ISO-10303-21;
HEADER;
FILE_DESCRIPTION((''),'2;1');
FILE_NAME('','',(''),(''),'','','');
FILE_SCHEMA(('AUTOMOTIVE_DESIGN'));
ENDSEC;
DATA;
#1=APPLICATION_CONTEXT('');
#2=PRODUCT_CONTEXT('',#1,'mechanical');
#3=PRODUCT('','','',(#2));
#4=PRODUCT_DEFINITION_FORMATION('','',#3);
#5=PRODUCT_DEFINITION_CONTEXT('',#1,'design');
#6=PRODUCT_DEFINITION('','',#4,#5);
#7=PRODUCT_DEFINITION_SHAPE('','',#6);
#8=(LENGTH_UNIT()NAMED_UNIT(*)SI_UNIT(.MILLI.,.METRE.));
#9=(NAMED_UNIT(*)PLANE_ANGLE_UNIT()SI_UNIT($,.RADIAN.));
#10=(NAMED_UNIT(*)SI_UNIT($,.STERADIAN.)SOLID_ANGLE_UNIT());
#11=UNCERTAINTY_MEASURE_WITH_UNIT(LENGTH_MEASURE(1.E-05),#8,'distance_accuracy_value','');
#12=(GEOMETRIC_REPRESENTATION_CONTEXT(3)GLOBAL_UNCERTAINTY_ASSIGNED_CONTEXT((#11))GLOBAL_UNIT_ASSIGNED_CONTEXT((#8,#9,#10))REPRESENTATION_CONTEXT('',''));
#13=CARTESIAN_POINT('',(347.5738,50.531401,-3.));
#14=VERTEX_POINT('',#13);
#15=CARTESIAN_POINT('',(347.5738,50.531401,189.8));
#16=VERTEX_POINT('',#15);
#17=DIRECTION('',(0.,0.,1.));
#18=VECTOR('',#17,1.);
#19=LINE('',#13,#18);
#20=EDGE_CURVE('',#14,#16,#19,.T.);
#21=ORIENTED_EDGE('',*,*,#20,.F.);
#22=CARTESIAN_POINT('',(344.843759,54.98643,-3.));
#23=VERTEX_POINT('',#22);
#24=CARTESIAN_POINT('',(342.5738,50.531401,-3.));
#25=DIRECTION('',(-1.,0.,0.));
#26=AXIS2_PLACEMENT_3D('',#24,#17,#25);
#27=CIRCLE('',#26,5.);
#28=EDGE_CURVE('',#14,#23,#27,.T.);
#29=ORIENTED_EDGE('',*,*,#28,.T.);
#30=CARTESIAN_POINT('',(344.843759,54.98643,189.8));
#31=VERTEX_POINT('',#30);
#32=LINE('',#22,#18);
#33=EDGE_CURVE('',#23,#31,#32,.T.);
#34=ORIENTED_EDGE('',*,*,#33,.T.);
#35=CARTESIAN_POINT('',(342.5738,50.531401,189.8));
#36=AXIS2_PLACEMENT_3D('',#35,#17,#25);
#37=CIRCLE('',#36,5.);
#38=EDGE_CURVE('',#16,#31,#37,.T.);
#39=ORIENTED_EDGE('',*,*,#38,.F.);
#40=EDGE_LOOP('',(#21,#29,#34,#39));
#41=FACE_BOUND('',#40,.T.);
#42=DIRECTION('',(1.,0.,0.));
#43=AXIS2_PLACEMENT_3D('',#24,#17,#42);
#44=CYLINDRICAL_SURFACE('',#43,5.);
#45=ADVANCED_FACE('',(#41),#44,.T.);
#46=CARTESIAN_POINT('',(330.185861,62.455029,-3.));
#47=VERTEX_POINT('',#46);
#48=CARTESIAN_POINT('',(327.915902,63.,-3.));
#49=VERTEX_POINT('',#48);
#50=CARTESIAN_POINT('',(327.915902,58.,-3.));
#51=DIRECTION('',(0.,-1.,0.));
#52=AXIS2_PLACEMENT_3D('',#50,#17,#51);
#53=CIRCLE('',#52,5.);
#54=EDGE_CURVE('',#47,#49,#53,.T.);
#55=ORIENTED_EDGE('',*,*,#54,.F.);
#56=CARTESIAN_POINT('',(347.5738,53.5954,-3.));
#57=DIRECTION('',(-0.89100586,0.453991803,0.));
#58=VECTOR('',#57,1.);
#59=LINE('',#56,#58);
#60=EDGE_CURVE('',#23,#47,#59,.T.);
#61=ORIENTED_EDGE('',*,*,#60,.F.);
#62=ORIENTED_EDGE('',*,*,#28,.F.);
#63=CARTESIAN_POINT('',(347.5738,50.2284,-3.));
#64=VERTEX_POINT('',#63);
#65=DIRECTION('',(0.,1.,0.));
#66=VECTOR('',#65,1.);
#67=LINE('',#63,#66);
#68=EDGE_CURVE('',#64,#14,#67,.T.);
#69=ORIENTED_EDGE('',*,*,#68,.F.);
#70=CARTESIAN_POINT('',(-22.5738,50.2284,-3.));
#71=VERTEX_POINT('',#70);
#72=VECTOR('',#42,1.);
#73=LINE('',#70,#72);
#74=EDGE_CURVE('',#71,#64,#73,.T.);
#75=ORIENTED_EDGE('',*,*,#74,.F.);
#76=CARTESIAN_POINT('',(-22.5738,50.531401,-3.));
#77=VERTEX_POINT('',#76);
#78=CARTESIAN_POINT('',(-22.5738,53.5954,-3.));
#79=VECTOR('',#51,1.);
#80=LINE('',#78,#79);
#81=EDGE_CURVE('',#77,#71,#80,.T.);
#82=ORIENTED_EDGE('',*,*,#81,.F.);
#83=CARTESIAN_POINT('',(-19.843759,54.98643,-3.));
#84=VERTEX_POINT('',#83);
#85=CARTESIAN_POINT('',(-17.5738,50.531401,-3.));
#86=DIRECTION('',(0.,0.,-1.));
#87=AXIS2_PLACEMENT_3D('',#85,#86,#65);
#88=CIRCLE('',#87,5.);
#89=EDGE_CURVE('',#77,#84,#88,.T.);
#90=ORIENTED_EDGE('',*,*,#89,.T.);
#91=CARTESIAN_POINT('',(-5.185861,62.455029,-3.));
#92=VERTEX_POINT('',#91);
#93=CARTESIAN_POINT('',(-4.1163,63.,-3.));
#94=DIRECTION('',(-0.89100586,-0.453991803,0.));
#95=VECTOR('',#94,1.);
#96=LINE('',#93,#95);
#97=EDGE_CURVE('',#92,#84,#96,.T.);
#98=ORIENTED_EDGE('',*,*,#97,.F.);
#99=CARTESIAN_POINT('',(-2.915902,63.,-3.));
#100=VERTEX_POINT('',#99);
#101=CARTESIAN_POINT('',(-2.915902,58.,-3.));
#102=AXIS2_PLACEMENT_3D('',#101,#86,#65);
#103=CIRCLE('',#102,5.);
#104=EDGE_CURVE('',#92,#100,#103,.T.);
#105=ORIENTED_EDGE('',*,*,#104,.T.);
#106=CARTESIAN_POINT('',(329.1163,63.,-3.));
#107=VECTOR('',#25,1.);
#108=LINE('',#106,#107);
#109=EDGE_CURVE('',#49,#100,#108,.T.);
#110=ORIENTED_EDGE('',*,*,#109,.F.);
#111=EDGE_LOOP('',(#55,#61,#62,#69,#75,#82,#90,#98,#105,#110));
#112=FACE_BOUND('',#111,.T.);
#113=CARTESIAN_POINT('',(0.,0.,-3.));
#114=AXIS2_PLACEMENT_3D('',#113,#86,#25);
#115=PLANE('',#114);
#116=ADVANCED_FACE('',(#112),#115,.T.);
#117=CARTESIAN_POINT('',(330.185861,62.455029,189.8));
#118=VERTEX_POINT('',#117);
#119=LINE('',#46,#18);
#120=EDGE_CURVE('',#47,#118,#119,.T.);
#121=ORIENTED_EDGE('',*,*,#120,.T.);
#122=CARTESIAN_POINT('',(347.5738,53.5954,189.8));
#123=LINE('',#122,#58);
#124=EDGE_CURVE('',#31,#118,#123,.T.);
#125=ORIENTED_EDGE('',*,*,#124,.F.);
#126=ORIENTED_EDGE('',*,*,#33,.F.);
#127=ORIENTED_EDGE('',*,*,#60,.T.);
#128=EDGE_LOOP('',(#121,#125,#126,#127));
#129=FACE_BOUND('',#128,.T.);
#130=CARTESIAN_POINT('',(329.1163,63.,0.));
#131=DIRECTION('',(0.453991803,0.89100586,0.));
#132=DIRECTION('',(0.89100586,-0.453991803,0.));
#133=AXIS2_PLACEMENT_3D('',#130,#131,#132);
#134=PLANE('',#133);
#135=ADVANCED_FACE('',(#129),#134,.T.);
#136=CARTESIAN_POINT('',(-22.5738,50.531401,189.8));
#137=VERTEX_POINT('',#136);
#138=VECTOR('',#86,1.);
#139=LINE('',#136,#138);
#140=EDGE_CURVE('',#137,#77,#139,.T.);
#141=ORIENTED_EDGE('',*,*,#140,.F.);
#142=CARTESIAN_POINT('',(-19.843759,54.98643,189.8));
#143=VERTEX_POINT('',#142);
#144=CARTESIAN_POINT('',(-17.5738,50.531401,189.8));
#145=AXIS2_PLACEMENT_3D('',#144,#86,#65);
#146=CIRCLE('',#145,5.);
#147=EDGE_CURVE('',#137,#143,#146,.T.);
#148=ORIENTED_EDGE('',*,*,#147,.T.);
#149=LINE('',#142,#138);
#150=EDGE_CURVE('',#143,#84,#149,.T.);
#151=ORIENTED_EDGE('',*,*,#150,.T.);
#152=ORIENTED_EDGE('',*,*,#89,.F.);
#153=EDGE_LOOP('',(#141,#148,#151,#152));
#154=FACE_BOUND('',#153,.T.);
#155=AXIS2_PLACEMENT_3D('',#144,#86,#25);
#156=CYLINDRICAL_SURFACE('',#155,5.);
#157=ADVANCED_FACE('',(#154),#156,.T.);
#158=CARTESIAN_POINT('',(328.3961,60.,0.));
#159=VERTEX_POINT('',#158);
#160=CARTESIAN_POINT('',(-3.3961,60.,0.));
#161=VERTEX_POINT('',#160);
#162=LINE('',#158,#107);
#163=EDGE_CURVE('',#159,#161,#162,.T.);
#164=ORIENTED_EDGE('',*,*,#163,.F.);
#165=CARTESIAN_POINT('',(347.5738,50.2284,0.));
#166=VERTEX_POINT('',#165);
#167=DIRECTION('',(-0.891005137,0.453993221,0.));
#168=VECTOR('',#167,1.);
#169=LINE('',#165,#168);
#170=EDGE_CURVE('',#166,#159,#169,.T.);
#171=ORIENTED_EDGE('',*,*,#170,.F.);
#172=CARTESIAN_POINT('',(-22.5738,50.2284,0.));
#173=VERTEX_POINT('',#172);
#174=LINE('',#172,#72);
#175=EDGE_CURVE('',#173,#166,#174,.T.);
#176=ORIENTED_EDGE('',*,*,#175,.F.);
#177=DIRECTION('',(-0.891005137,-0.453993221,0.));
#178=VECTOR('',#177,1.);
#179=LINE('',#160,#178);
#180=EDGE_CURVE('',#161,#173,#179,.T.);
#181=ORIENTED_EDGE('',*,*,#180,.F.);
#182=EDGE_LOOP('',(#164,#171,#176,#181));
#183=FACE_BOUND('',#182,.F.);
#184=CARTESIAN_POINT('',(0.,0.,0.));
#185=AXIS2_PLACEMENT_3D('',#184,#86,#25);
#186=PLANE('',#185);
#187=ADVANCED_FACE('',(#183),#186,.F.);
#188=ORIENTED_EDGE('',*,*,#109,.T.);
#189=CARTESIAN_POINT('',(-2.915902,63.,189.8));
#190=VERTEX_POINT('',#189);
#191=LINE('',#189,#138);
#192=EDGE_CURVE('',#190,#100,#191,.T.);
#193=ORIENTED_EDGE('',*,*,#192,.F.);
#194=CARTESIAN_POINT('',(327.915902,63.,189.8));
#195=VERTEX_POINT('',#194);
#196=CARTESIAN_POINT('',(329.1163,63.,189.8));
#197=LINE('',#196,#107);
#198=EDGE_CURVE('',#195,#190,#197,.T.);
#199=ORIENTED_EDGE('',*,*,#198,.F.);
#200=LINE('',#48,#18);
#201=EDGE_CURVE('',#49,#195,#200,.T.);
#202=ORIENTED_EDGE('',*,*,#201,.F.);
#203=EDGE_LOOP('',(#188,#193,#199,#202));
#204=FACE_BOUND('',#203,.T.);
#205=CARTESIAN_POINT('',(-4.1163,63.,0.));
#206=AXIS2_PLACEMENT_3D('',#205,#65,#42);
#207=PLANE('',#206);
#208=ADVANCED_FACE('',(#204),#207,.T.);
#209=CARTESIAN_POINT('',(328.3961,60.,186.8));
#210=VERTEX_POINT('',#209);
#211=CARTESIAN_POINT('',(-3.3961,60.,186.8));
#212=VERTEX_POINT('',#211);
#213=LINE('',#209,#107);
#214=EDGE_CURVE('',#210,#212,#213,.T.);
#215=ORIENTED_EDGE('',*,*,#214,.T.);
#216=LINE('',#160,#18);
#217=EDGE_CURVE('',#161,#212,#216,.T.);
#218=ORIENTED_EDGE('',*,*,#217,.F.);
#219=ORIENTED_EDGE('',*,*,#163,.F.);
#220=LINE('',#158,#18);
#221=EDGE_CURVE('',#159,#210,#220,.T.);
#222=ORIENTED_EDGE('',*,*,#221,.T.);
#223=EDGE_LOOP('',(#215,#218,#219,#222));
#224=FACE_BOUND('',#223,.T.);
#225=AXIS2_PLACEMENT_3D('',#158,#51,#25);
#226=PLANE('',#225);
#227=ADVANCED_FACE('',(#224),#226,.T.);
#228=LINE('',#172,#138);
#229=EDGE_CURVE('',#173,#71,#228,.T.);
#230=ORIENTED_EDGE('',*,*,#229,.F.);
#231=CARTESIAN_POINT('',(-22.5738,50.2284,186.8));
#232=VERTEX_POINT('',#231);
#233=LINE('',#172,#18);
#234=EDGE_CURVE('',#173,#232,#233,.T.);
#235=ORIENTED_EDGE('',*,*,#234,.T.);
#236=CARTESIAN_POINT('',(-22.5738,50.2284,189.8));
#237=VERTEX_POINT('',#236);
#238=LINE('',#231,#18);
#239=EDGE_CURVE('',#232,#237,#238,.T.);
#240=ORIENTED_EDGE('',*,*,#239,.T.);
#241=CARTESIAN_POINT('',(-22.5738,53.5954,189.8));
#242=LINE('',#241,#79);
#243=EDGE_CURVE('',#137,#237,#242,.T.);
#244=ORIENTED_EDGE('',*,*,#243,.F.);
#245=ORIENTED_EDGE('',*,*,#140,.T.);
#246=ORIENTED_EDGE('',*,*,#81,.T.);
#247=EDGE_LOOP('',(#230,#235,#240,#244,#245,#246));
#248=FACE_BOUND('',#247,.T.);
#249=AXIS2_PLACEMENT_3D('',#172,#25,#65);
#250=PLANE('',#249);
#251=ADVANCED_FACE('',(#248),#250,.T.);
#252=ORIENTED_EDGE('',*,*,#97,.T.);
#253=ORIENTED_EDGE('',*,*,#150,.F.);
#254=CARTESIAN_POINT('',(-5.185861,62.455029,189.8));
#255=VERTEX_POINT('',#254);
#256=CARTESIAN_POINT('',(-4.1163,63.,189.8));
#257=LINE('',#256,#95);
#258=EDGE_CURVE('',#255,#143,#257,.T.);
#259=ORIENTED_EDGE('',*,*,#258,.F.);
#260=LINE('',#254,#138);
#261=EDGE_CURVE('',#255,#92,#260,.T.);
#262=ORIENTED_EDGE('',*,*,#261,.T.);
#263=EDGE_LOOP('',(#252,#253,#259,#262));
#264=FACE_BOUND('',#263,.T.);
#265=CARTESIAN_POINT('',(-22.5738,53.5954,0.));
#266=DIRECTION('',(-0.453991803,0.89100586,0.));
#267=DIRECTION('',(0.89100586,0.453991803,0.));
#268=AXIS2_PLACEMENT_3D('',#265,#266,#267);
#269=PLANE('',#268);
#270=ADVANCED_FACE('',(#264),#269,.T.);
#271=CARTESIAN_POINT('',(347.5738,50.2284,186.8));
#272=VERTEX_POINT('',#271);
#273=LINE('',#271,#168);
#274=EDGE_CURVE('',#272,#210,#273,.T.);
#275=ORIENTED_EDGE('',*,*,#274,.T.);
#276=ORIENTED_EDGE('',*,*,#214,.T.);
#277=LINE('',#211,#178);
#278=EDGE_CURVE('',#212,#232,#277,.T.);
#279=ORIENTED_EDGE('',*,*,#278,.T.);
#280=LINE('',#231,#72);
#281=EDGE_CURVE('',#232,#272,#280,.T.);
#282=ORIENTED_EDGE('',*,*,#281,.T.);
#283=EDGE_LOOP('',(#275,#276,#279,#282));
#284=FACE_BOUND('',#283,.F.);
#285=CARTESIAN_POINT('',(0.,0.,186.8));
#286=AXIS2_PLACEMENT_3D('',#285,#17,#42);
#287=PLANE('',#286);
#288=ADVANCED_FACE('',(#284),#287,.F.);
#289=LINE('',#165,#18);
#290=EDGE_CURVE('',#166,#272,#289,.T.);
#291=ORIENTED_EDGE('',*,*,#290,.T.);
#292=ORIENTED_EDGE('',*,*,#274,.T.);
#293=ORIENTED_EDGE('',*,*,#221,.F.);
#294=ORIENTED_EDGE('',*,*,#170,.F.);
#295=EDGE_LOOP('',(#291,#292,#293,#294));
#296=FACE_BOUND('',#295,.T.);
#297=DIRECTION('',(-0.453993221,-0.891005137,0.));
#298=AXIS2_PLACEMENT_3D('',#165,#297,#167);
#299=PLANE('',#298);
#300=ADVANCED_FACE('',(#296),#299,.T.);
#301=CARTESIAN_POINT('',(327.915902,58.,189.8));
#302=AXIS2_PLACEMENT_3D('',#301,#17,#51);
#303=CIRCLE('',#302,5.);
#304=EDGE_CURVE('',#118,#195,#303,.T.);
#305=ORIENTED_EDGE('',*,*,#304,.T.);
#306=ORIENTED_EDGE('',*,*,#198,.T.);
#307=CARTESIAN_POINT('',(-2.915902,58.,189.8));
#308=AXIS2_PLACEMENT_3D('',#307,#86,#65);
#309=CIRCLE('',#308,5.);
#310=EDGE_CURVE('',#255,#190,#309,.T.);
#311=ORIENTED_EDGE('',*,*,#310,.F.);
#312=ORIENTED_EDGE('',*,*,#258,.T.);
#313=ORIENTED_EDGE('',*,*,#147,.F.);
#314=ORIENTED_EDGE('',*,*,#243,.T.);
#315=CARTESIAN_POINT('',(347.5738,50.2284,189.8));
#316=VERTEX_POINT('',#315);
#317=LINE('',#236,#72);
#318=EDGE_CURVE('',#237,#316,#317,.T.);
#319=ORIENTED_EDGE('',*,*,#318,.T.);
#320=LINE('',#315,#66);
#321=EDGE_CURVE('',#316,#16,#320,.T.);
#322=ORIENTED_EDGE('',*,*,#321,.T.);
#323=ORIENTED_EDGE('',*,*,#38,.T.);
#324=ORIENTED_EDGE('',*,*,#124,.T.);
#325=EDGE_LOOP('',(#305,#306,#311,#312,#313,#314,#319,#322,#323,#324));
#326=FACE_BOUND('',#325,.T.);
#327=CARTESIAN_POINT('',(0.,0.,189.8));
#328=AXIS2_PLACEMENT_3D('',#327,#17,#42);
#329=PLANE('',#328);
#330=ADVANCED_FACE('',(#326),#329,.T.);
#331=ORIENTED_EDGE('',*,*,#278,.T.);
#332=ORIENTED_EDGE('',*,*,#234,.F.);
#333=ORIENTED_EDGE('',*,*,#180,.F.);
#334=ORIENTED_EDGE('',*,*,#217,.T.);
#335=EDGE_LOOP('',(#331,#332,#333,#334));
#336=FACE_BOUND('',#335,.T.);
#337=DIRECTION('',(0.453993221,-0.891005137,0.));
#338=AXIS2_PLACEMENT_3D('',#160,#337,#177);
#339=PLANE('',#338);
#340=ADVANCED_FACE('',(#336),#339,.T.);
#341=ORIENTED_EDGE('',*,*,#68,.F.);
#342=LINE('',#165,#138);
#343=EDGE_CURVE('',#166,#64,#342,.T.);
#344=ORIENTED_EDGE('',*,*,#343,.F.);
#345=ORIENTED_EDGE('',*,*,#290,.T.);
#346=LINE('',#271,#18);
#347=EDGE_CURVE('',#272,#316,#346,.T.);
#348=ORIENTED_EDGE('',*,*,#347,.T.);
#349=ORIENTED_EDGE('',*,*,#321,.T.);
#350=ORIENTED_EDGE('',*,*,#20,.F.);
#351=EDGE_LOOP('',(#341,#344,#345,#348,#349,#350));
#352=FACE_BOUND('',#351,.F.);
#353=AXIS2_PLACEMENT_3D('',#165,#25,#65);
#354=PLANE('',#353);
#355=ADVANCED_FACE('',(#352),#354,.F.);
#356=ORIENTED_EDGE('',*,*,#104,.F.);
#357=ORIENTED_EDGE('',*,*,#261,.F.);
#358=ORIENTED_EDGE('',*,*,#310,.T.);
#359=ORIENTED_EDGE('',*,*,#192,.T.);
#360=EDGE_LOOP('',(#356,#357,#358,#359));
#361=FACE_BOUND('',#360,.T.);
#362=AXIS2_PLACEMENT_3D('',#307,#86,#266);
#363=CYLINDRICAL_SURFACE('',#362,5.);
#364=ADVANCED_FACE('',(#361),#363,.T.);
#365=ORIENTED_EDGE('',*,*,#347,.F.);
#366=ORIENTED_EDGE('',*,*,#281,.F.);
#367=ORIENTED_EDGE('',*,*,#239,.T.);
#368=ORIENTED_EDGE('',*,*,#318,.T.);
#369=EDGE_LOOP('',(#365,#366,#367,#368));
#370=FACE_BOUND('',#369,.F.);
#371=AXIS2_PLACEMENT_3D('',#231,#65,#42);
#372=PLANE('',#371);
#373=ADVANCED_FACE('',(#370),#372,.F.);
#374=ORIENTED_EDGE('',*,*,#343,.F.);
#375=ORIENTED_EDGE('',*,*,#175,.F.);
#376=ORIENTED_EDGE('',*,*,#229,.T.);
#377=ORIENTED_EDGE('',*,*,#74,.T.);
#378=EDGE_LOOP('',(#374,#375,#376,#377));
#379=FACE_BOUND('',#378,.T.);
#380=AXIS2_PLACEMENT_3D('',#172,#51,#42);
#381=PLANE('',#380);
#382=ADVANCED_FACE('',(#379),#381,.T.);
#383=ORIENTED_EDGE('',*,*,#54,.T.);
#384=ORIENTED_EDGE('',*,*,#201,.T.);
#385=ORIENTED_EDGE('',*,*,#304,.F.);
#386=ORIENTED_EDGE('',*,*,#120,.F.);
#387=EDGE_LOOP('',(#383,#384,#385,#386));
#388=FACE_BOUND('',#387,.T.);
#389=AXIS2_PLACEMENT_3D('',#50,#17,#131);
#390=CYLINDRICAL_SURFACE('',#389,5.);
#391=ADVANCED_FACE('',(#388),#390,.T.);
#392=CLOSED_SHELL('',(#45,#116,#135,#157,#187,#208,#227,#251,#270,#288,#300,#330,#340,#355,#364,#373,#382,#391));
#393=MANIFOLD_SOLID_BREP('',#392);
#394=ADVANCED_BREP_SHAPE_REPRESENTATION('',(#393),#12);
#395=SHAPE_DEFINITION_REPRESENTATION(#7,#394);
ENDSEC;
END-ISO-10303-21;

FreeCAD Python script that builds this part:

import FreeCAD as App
import Part
import Sketcher
from FreeCAD import Vector
Q = App.Units.Quantity


def edges_at(feature, points):
    """Names of the edges that pass closest to the given points."""
    edges = feature.Shape.Edges
    near = lambda p: min(range(len(edges)), key=lambda i: edges[i].distToShape(Part.Vertex(*p))[0])
    return sorted({f"Edge{near(p) + 1}" for p in points})


def add_polygon(sketch, points):
    """Adds a closed chain of lines whose ends are joined by coincident constraints."""
    first, n = sketch.GeometryCount, len(points)
    for a, b in zip(points, points[1:] + points[:1]):
        sketch.addGeometry(Part.LineSegment(App.Vector(*a, 0), App.Vector(*b, 0)), False)
    for i in range(n):
        sketch.addConstraint(Sketcher.Constraint("Coincident", first + i, 2, first + (i + 1) % n, 1))

doc = App.newDocument("Part")
body = doc.addObject("PartDesign::Body", "Body")

# Sketch on XY plane
sketch1 = body.newObject("Sketcher::SketchObject", "Sketch")
sketch1.AttachmentSupport = (doc.getObject("XY_Plane"), [""])
sketch1.MapMode = "FlatFace"
add_polygon(sketch1, [(-3.4, 60), (328.4, 60), (347.6, 50.2), (347.6, 53.6), (329.1, 63), (-4.1, 63), (-22.6, 53.6), (-22.6, 50.2)])  # lines 0-7
sketch1.addConstraint(Sketcher.Constraint("Horizontal", 0))
sketch1.addConstraint(Sketcher.Constraint("Vertical", 2))
sketch1.addConstraint(Sketcher.Constraint("Horizontal", 4))
sketch1.addConstraint(Sketcher.Constraint("Vertical", 6))
sketch1.addConstraint(Sketcher.Constraint("Parallel", 1, 3))
sketch1.addConstraint(Sketcher.Constraint("Parallel", 5, 7))
sketch1.addConstraint(Sketcher.Constraint("Horizontal", 2, 2, 5, 2))
sketch1.addConstraint(Sketcher.Constraint("Horizontal", 1, 2, 6, 2))
sketch1.addConstraint(Sketcher.Constraint("Equal", 3, 5))
sketch1.addConstraint(Sketcher.Constraint("DistanceY", 0, 2, 3, 2, Q("3 mm")))
sketch1.addConstraint(Sketcher.Constraint("Angle", 1, Q("-27.0002 deg")))
sketch1.addConstraint(Sketcher.Constraint("DistanceY", -1, 1, 0, 2, Q("60 mm")))
sketch1.addConstraint(Sketcher.Constraint("DistanceY", 2, 1, 2, 2, Q("3.367 mm")))
sketch1.addConstraint(Sketcher.Constraint("DistanceX", 4, 2, 2, 2, Q("351.69 mm")))
sketch1.addConstraint(Sketcher.Constraint("DistanceX", 0, 1, 0, 2, Q("331.7922 mm")))
sketch1.addConstraint(Sketcher.Constraint("DistanceX", -1, 1, 0, 2, Q("328.396 mm")))
pad1 = body.newObject("PartDesign::Pad", "Pad")
pad1.Profile = sketch1
pad1.Length = 186.8

# Sketch on XY plane
sketch2 = body.newObject("Sketcher::SketchObject", "Sketch001")
sketch2.AttachmentSupport = (doc.getObject("XY_Plane"), [""])
sketch2.MapMode = "FlatFace"
sketch2.AttachmentOffset = App.Placement(Vector(0, 0, 186.8), App.Rotation())
add_polygon(sketch2, [(-4.1, 63), (-22.6, 53.6), (-22.6, 50.2), (347.6, 50.2), (347.6, 53.6), (329.1, 63)])  # lines 0-5
sketch2.addConstraint(Sketcher.Constraint("Vertical", 1))
sketch2.addConstraint(Sketcher.Constraint("Horizontal", 2))
sketch2.addConstraint(Sketcher.Constraint("Vertical", 3))
sketch2.addConstraint(Sketcher.Constraint("Horizontal", 5))
sketch2.addConstraint(Sketcher.Constraint("Horizontal", 0, 2, 3, 2))
sketch2.addConstraint(Sketcher.Constraint("Equal", 0, 4))
sketch2.addConstraint(Sketcher.Constraint("Angle", 0, Q("-153 deg")))
sketch2.addConstraint(Sketcher.Constraint("DistanceY", -1, 1, 4, 2, Q("63 mm")))
sketch2.addConstraint(Sketcher.Constraint("DistanceY", 1, 2, 1, 1, Q("3.367 mm")))
sketch2.addConstraint(Sketcher.Constraint("DistanceX", 0, 2, 4, 2, Q("351.69 mm")))
sketch2.addConstraint(Sketcher.Constraint("DistanceX", 2, 1, 2, 2, Q("370.1476 mm")))
sketch2.addConstraint(Sketcher.Constraint("DistanceX", 0, 2, -1, 1, Q("22.5738 mm")))
pad2 = body.newObject("PartDesign::Pad", "Pad001")
pad2.Profile = sketch2
pad2.Length = 3

# Sketch on XY plane
sketch3 = body.newObject("Sketcher::SketchObject", "Sketch002")
sketch3.AttachmentSupport = (doc.getObject("XY_Plane"), [""])
sketch3.MapMode = "FlatFace"
add_polygon(sketch3, [(347.6, 50.2), (-22.6, 50.2), (-22.6, 53.6), (-4.1, 63), (329.1, 63), (347.6, 53.6)])  # lines 0-5
sketch3.addConstraint(Sketcher.Constraint("Horizontal", 0))
sketch3.addConstraint(Sketcher.Constraint("Vertical", 1))
sketch3.addConstraint(Sketcher.Constraint("Horizontal", 3))
sketch3.addConstraint(Sketcher.Constraint("Vertical", 5))
sketch3.addConstraint(Sketcher.Constraint("Horizontal", 1, 2, 4, 2))
sketch3.addConstraint(Sketcher.Constraint("Equal", 2, 4))
sketch3.addConstraint(Sketcher.Constraint("Angle", 2, Q("27 deg")))
sketch3.addConstraint(Sketcher.Constraint("DistanceY", -1, 1, 2, 2, Q("63 mm")))
sketch3.addConstraint(Sketcher.Constraint("DistanceY", 1, 1, 1, 2, Q("3.367 mm")))
sketch3.addConstraint(Sketcher.Constraint("DistanceX", 1, 2, 3, 2, Q("351.69 mm")))
sketch3.addConstraint(Sketcher.Constraint("DistanceX", 0, 2, 0, 1, Q("370.1476 mm")))
sketch3.addConstraint(Sketcher.Constraint("DistanceX", 0, 2, -1, 1, Q("22.5738 mm")))
pad3 = body.newObject("PartDesign::Pad", "Pad002")
pad3.Profile = sketch3
pad3.Length = 3
pad3.Reversed = True
doc.recompute()

fillet = body.newObject("PartDesign::Fillet", "Fillet")
fillet.Base = (pad3, edges_at(pad3, [
    (329.116, 63, 93.4),
    (347.574, 53.595, 93.4),
    (-4.116, 63, 93.4),
    (-22.574, 53.595, 93.4),
]))
fillet.Radius = 5

doc.recompute()
